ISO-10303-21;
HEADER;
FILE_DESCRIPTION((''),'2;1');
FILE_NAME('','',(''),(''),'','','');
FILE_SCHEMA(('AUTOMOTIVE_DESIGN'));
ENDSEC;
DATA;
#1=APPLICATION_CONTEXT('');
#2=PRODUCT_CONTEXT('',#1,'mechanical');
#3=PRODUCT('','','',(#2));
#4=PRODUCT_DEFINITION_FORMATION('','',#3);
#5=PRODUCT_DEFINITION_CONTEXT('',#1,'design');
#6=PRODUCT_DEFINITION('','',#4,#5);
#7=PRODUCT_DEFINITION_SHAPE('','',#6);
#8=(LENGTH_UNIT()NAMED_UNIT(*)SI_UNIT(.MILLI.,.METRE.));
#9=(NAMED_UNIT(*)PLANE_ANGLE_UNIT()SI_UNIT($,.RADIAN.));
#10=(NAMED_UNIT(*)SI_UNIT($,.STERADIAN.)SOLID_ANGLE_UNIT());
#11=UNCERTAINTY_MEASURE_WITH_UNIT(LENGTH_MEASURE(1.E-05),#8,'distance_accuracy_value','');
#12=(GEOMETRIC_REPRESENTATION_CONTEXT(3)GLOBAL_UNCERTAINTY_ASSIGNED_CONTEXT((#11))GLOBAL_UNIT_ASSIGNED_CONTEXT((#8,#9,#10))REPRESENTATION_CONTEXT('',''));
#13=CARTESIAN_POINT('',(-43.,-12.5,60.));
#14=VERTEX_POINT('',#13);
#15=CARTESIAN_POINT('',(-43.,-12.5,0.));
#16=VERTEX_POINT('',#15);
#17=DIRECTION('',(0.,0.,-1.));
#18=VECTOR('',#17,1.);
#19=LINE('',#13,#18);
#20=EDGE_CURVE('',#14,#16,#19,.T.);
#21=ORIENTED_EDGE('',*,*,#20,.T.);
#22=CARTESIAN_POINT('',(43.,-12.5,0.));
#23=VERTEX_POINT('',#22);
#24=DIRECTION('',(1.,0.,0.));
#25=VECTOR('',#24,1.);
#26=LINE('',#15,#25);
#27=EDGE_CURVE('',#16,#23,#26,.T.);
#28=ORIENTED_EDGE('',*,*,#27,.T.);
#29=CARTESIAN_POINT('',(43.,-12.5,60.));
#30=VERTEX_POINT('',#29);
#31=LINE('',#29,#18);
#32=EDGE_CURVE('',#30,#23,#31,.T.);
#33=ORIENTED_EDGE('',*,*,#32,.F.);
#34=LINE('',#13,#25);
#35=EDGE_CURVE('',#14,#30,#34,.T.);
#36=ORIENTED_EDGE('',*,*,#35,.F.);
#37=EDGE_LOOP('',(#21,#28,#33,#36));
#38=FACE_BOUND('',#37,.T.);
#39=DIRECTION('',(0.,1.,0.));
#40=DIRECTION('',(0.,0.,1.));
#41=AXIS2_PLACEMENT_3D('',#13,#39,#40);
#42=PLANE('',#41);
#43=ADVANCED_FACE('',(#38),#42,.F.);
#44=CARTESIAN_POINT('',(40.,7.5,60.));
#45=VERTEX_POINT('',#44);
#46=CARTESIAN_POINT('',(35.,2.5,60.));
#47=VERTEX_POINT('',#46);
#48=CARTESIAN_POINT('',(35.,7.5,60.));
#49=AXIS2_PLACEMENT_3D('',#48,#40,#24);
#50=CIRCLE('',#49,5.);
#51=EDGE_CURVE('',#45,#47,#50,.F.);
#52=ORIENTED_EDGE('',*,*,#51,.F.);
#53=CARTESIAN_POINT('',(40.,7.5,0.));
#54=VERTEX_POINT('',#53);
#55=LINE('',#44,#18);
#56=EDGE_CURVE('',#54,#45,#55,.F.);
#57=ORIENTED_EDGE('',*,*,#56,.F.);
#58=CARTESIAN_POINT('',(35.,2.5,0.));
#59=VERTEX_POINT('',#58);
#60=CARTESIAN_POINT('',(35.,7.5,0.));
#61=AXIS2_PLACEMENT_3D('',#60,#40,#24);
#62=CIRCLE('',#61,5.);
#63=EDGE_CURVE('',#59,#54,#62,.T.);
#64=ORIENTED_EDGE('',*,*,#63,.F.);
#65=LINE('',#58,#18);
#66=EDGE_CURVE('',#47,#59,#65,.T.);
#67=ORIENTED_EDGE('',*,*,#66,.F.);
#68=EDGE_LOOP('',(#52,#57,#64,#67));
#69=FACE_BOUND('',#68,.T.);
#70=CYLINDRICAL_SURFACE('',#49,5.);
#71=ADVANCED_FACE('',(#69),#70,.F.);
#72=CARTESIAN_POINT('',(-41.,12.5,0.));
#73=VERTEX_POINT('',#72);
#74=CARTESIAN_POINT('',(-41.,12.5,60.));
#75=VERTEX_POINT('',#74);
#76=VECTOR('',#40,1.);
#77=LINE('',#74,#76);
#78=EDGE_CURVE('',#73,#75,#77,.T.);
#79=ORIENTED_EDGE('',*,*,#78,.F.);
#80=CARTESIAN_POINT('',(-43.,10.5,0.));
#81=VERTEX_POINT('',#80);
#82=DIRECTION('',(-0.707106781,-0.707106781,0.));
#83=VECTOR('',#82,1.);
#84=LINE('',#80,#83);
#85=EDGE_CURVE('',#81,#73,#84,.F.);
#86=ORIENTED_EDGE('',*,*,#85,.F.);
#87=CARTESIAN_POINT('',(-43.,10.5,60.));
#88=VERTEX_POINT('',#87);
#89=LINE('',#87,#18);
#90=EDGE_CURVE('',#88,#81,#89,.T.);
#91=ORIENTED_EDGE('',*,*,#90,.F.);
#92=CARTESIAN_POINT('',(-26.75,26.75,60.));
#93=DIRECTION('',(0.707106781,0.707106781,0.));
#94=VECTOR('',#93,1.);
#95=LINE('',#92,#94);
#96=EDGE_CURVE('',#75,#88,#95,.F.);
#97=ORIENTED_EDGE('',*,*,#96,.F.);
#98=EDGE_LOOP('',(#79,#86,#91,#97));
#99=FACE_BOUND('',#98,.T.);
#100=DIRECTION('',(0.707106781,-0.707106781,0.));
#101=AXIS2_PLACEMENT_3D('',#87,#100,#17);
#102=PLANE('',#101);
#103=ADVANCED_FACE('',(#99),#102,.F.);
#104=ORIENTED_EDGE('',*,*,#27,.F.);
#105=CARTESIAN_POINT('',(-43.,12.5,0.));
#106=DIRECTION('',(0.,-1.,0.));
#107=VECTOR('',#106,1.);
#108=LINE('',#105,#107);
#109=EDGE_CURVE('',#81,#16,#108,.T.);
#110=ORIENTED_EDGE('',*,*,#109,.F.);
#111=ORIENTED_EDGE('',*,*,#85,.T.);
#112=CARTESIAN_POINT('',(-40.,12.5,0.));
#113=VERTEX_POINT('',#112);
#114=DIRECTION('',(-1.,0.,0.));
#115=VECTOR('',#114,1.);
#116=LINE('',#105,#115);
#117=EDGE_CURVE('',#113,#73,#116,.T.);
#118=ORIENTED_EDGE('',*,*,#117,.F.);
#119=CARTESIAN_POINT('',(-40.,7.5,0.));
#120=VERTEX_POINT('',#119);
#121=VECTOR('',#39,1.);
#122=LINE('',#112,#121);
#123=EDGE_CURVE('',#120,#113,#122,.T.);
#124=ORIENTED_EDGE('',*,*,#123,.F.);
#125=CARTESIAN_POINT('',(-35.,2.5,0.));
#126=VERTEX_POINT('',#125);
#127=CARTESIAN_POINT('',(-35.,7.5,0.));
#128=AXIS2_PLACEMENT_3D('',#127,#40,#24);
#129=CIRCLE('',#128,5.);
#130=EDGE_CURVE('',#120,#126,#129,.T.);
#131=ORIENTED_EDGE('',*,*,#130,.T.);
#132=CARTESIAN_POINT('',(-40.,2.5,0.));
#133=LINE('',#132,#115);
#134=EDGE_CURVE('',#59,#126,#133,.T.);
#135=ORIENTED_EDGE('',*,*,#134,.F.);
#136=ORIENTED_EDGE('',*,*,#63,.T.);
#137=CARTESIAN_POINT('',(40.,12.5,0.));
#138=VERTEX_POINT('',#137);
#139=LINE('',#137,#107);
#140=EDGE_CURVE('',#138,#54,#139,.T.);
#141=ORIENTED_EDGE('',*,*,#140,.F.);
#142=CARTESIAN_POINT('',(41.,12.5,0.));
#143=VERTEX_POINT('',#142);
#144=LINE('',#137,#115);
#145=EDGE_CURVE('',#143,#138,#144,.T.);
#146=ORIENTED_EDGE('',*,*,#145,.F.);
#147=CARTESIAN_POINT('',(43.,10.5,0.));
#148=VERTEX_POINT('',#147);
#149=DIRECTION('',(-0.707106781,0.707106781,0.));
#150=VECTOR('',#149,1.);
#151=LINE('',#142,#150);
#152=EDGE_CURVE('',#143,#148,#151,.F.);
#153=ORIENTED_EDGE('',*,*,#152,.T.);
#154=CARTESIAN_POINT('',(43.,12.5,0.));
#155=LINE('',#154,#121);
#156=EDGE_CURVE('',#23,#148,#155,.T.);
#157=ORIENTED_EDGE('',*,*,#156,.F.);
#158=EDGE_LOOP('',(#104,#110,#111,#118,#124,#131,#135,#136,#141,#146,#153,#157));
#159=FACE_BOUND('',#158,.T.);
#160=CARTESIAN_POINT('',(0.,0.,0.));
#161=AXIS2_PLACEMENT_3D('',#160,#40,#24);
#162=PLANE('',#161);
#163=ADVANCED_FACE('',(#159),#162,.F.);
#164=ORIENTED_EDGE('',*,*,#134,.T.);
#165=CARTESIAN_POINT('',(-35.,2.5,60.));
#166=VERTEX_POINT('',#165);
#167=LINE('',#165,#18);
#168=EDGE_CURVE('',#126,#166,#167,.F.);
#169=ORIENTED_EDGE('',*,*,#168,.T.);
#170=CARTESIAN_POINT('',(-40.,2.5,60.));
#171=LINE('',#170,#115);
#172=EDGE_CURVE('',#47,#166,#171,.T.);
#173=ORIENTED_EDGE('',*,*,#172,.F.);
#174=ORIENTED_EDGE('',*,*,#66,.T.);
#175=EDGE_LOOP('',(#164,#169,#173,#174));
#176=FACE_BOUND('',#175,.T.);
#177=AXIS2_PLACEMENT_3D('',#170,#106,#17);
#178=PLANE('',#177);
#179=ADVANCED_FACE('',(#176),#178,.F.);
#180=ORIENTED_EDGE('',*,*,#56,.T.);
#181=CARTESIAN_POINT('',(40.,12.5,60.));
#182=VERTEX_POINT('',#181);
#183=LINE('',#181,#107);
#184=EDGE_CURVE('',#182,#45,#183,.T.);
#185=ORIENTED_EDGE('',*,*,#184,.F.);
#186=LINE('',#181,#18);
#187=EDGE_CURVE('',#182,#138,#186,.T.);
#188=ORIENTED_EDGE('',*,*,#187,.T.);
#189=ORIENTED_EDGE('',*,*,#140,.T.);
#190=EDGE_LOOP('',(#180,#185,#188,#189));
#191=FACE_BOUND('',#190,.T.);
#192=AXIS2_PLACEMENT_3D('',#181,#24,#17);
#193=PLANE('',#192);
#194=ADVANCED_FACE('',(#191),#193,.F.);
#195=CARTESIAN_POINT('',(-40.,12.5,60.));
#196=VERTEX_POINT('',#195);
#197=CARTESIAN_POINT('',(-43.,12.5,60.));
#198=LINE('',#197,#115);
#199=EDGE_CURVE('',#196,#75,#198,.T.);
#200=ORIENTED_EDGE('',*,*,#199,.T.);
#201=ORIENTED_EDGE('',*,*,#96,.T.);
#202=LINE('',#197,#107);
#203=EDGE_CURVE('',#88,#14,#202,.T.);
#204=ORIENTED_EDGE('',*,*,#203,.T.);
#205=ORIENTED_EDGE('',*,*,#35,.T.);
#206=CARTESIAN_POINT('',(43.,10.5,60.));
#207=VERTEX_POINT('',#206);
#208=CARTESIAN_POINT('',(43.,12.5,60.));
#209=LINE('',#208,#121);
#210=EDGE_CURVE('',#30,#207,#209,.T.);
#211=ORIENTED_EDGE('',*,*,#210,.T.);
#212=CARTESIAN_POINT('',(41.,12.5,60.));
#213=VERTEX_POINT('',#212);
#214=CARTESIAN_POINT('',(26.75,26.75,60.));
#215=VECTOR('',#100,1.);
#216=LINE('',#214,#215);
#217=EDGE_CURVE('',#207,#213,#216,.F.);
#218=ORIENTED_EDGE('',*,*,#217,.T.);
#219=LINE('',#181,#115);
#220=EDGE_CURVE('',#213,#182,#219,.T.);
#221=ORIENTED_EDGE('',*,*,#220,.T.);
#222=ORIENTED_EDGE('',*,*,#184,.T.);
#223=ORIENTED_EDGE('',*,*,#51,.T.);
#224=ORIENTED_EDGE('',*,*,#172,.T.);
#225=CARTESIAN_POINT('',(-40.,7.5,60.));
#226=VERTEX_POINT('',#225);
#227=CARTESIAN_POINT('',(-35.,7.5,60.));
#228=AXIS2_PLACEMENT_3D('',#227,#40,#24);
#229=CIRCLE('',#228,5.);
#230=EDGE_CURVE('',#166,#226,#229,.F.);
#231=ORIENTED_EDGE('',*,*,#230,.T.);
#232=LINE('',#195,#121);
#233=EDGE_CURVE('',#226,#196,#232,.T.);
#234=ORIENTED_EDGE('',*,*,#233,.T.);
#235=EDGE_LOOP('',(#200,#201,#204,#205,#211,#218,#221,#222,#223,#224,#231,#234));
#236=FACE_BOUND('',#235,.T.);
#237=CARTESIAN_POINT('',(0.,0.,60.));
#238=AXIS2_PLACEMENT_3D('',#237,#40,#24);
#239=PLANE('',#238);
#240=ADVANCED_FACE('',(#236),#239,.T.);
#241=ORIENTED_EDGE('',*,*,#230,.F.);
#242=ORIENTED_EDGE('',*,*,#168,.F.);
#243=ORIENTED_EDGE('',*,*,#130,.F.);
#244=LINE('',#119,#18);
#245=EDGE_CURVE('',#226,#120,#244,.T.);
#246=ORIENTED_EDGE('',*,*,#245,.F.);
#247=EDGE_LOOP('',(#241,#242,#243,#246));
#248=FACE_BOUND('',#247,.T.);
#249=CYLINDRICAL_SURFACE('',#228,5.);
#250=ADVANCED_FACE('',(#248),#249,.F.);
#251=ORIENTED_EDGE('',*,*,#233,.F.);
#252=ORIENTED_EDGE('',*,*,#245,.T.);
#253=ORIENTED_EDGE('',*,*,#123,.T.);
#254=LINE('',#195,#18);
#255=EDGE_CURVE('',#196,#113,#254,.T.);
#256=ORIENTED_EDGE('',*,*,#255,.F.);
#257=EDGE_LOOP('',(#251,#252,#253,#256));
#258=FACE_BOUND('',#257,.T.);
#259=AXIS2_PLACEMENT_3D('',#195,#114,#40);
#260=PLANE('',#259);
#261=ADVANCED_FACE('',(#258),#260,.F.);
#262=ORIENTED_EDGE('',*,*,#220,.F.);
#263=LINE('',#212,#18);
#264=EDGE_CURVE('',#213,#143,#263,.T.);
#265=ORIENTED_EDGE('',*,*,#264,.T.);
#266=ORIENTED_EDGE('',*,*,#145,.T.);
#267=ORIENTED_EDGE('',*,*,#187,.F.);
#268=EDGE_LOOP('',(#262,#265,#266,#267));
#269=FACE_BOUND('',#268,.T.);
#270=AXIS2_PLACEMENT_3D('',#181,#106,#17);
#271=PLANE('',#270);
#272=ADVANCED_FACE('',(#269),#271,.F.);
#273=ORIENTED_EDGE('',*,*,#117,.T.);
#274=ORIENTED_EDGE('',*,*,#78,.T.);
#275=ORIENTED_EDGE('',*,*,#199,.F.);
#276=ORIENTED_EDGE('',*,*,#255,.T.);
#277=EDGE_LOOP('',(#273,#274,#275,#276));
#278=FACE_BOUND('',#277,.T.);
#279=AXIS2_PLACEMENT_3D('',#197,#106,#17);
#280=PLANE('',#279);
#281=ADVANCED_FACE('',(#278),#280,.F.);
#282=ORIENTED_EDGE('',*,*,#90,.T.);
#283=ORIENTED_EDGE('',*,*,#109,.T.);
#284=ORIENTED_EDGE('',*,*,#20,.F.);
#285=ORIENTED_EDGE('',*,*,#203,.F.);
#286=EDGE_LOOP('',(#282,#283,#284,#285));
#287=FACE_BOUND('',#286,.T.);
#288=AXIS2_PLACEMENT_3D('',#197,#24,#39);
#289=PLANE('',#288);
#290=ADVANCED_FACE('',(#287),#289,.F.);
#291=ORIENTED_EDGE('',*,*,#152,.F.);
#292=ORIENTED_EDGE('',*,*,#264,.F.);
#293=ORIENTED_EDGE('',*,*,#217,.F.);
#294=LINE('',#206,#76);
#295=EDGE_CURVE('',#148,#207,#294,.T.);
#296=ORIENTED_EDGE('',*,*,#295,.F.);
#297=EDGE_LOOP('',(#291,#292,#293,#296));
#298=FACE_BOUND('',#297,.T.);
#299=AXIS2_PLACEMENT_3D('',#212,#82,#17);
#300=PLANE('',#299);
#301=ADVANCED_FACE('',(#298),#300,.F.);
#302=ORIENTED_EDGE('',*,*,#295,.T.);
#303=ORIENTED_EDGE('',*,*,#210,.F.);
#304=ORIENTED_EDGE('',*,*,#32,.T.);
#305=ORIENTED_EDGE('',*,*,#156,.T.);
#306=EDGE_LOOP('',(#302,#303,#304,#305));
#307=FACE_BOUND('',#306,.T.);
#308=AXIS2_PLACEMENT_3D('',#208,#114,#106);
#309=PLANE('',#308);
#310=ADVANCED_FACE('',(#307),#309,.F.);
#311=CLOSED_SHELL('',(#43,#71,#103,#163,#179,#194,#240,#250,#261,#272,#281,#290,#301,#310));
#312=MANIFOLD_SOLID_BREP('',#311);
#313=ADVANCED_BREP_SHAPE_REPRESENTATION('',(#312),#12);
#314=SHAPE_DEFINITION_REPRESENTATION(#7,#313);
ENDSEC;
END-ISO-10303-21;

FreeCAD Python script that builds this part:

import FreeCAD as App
import Part
import Sketcher


def edges_at(feature, points):
    """Names of the edges that pass closest to the given points."""
    edges = feature.Shape.Edges
    near = lambda p: min(range(len(edges)), key=lambda i: edges[i].distToShape(Part.Vertex(*p))[0])
    return sorted({f"Edge{near(p) + 1}" for p in points})


def add_polygon(sketch, points):
    """Adds a closed chain of lines whose ends are joined by coincident constraints."""
    first, n = sketch.GeometryCount, len(points)
    for a, b in zip(points, points[1:] + points[:1]):
        sketch.addGeometry(Part.LineSegment(App.Vector(*a, 0), App.Vector(*b, 0)), False)
    for i in range(n):
        sketch.addConstraint(Sketcher.Constraint("Coincident", first + i, 2, first + (i + 1) % n, 1))

doc = App.newDocument("Part")
body = doc.addObject("PartDesign::Body", "Body")

sketch1 = body.newObject("Sketcher::SketchObject", "Sketch")
sketch1.AttachmentSupport = (doc.getObject("XY_Plane"), [""])
sketch1.MapMode = "FlatFace"
add_polygon(sketch1, [(43, 12.5), (40, 12.5), (40, 2.5), (-40, 2.5), (-40, 12.5), (-43, 12.5), (-43, -12.5), (43, -12.5)])
sketch1.addConstraint([
    Sketcher.Constraint("Horizontal", 0),
    Sketcher.Constraint("Vertical", 1),
    Sketcher.Constraint("Horizontal", 2),
    Sketcher.Constraint("Vertical", 3),
    Sketcher.Constraint("Horizontal", 4),
    Sketcher.Constraint("Vertical", 5),
    Sketcher.Constraint("Horizontal", 6),
    Sketcher.Constraint("Vertical", 7),
    Sketcher.Constraint("Symmetric", 4, 2, 6, 2, -1, 1),
    Sketcher.Constraint("Symmetric", 0, 2, 3, 2, -2),
    Sketcher.Constraint("DistanceX", 0, 2, 0, 1, 3.0),
    Sketcher.Constraint("DistanceX", 2, 2, 2, 1, 80.0),
    Sketcher.Constraint("DistanceY", 1, 2, 1, 1, 10.0),
    Sketcher.Constraint("DistanceY", 5, 2, 5, 1, 25.0),
])
pad1 = body.newObject("PartDesign::Pad", "Pad")
pad1.Profile = sketch1
pad1.Length = 60
doc.recompute()

fillet = body.newObject("PartDesign::Fillet", "Fillet")
fillet.Base = (pad1, edges_at(pad1, [(-40, 2.5, 30), (40, 2.5, 30)]))
fillet.Radius = 5
doc.recompute()

chamfer = body.newObject("PartDesign::Chamfer", "Chamfer")
chamfer.Base = (fillet, edges_at(fillet, [(-43, 12.5, 30), (43, 12.5, 30)]))
chamfer.Size = 2

doc.recompute()
